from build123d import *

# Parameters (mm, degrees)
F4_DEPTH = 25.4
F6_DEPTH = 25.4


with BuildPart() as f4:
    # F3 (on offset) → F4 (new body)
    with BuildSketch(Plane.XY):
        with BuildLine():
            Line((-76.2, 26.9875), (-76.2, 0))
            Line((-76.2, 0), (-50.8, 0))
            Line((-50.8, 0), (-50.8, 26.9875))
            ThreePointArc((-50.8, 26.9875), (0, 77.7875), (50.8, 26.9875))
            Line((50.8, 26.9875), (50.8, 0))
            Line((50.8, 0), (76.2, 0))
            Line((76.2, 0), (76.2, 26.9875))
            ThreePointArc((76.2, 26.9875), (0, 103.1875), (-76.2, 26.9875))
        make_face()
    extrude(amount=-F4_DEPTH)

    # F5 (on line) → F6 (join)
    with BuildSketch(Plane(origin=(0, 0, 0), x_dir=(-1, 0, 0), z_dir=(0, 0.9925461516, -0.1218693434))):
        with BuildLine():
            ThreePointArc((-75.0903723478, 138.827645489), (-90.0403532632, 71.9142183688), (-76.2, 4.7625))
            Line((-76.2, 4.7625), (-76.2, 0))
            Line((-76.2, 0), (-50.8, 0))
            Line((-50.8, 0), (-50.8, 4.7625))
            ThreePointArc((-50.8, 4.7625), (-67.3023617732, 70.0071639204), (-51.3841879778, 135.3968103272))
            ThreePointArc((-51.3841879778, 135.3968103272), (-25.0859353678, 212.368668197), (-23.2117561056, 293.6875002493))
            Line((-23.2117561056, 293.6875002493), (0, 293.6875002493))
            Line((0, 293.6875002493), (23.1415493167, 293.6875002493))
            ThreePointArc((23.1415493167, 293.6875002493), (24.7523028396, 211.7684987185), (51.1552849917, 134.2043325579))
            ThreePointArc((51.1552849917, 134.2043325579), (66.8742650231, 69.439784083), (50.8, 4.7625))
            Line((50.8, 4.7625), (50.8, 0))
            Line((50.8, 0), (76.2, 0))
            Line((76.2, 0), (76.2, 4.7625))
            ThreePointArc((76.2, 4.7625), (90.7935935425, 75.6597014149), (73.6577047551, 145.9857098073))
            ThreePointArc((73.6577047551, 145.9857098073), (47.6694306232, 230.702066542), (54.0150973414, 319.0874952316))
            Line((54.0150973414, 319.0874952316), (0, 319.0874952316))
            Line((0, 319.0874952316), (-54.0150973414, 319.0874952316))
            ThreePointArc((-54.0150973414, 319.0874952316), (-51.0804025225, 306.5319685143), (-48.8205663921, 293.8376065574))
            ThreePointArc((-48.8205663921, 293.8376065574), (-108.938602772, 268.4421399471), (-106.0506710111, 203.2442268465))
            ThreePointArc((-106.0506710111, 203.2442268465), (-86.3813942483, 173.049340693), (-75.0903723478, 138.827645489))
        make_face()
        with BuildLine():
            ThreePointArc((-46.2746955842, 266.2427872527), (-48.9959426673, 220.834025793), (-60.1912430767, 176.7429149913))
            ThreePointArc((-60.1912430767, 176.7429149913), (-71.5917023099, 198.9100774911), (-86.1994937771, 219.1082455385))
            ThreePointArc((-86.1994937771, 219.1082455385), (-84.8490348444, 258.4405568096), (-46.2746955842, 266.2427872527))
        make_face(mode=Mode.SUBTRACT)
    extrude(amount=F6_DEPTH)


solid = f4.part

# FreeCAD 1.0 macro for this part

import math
import FreeCAD as App
import Part
import Sketcher
from FreeCAD import Vector
Q = App.Units.Quantity

doc = App.newDocument("Part")
body = doc.addObject("PartDesign::Body", "Body")

# Sketch on XY plane
sketch1 = body.newObject("Sketcher::SketchObject", "Sketch")
sketch1.AttachmentSupport = (doc.getObject("XY_Plane"), [""])
sketch1.MapMode = "FlatFace"
sketch1.addGeometry(Part.LineSegment(Vector(-76, 27, 0), Vector(-76, 0, 0)), False)
sketch1.addGeometry(Part.LineSegment(Vector(-76, 0, 0), Vector(-51, 0, 0)), False)
sketch1.addGeometry(Part.LineSegment(Vector(-51, 0, 0), Vector(-51, 27, 0)), False)
sketch1.addGeometry(Part.ArcOfCircle(Part.Circle(Vector(0, 27, 0), Vector(0, 0, 1), 51), math.radians(0), math.radians(180)), False)
sketch1.addGeometry(Part.LineSegment(Vector(51, 27, 0), Vector(51, 0, 0)), False)
sketch1.addGeometry(Part.LineSegment(Vector(51, 0, 0), Vector(76, 0, 0)), False)
sketch1.addGeometry(Part.LineSegment(Vector(76, 0, 0), Vector(76, 27, 0)), False)
sketch1.addGeometry(Part.ArcOfCircle(Part.Circle(Vector(0, 27, 0), Vector(0, 0, 1), 76), math.radians(0), math.radians(180)), False)
sketch1.addConstraint(Sketcher.Constraint("Coincident", 0, 2, 1, 1))
sketch1.addConstraint(Sketcher.Constraint("Coincident", 1, 2, 2, 1))
sketch1.addConstraint(Sketcher.Constraint("Tangent", 2, 2, 3, 2))
sketch1.addConstraint(Sketcher.Constraint("Tangent", 3, 1, 4, 1))
sketch1.addConstraint(Sketcher.Constraint("Coincident", 4, 2, 5, 1))
sketch1.addConstraint(Sketcher.Constraint("Coincident", 5, 2, 6, 1))
sketch1.addConstraint(Sketcher.Constraint("Tangent", 6, 2, 7, 1))
sketch1.addConstraint(Sketcher.Constraint("Tangent", 7, 2, 0, 1))
sketch1.addConstraint(Sketcher.Constraint("Vertical", 0))
sketch1.addConstraint(Sketcher.Constraint("Horizontal", 1))
sketch1.addConstraint(Sketcher.Constraint("Vertical", 2))
sketch1.addConstraint(Sketcher.Constraint("Vertical", 4))
sketch1.addConstraint(Sketcher.Constraint("Horizontal", 5))
sketch1.addConstraint(Sketcher.Constraint("Vertical", 6))
sketch1.addConstraint(Sketcher.Constraint("Coincident", 7, 3, 3, 3))
sketch1.addConstraint(Sketcher.Constraint("Symmetric", 1, 2, 4, 2, -1, 1))
sketch1.addConstraint(Sketcher.Constraint("PointOnObject", 0, 2, -1))
sketch1.addConstraint(Sketcher.Constraint("Radius", 3, Q("2 in")))
sketch1.addConstraint(Sketcher.Constraint("Radius", 7, Q("3 in")))
sketch1.addConstraint(Sketcher.Constraint("DistanceY", 0, 2, 0, 1, Q("1.0625 in")))
pad1 = body.newObject("PartDesign::Pad", "Pad")
pad1.Profile = sketch1
pad1.Length = Q("1 in")
pad1.Reversed = True

# Sketch on an angled plane
sketch2 = body.newObject("Sketcher::SketchObject", "Sketch001")
sketch2.Placement = App.Placement(Vector(0, 0, 0), App.Rotation(Vector(-1, 0, 0), Vector(0, 0.121869343, 0.992546152), Vector(0, 0.992546152, -0.121869343), "ZXY"))
sketch2.addGeometry(Part.ArcOfCircle(Part.Circle(Vector(73.229257, 70.562872, 0), Vector(0, 0, 1), 163.275203), math.radians(155.285537), math.radians(203.766036)), False)
sketch2.addGeometry(Part.LineSegment(Vector(-76.2, 4.7625, 0), Vector(-76.2, 0, 0)), False)
sketch2.addGeometry(Part.LineSegment(Vector(-76.2, 0, 0), Vector(-50.8, 0, 0)), False)
sketch2.addGeometry(Part.LineSegment(Vector(-50.8, 0, 0), Vector(-50.8, 4.7625, 0)), False)
sketch2.addGeometry(Part.ArcOfCircle(Part.Circle(Vector(72.396242, 70.631887, 0), Vector(0, 0, 1), 139.7), math.radians(152.380344), math.radians(208.132098)), False)
sketch2.addGeometry(Part.ArcOfCircle(Part.Circle(Vector(-287.659642, 259.101296, 0), Vector(0, 0, 1), 266.7), math.radians(-27.634776), math.radians(7.45122)), False)
sketch2.addGeometry(Part.LineSegment(Vector(-23.211756, 293.6875, 0), Vector(23.141549, 293.6875, 0)), False)
sketch2.addGeometry(Part.ArcOfCircle(Part.Circle(Vector(287.430739, 257.908818, 0), Vector(0, 0, 1), 266.7), math.radians(172.290338), math.radians(207.634776)), False)
sketch2.addGeometry(Part.ArcOfCircle(Part.Circle(Vector(-72.825209, 69.823224, 0), Vector(0, 0, 1), 139.7), math.radians(-27.756662), math.radians(27.442138)), False)
sketch2.addGeometry(Part.LineSegment(Vector(50.8, 4.7625, 0), Vector(50.8, 0, 0)), False)
sketch2.addGeometry(Part.LineSegment(Vector(50.8, 0, 0), Vector(76.2, 0, 0)), False)
sketch2.addGeometry(Part.LineSegment(Vector(76.2, 0, 0), Vector(76.2, 4.7625, 0)), False)
sketch2.addGeometry(Part.ArcOfCircle(Part.Circle(Vector(-74.279656, 72.688059, 0), Vector(0, 0, 1), 165.099995), math.radians(-24.294113), math.radians(26.356764)), False)
sketch2.addGeometry(Part.ArcOfCircle(Part.Circle(Vector(287.430739, 257.908818, 0), Vector(0, 0, 1), 241.300005), math.radians(165.313039), math.radians(207.634776)), False)
sketch2.addGeometry(Part.LineSegment(Vector(54.015097, 319.087495, 0), Vector(-54.015097, 319.087495, 0)), False)
sketch2.addGeometry(Part.ArcOfCircle(Part.Circle(Vector(-287.430739, 257.908818, 0), Vector(0, 0, 1), 241.300005), math.radians(8.562998), math.radians(14.686961)), False)
sketch2.addGeometry(Part.ArcOfCircle(Part.Circle(Vector(-60.622099, 237.919396, 0), Vector(0, 0, 1), 57.15), math.radians(78.08262), math.radians(217.354127)), False)
sketch2.addGeometry(Part.ArcOfCircle(Part.Circle(Vector(-212.293388, 112.532734, 0), Vector(0, 0, 1), 139.7), math.radians(10.849165), math.radians(40.491156)), False)
sketch2.addGeometry(Part.ArcOfCircle(Part.Circle(Vector(-60.622099, 237.919396, 0), Vector(0, 0, 1), 31.75), math.radians(63.135202), math.radians(216.332993)), False)
sketch2.addGeometry(Part.ArcOfCircle(Part.Circle(Vector(-287.430739, 257.908818, 0), Vector(0, 0, 1), 241.300005), math.radians(-19.655823), math.radians(1.979263)), False)
sketch2.addGeometry(Part.ArcOfCircle(Part.Circle(Vector(-212.293388, 112.532734, 0), Vector(0, 0, 1), 165.1), math.radians(22.887123), math.radians(40.204747)), False)
sketch2.addConstraint(Sketcher.Constraint("Coincident", 0, 2, 1, 1))
sketch2.addConstraint(Sketcher.Constraint("Coincident", 1, 2, 2, 1))
sketch2.addConstraint(Sketcher.Constraint("Coincident", 2, 2, 3, 1))
sketch2.addConstraint(Sketcher.Constraint("Coincident", 3, 2, 4, 2))
sketch2.addConstraint(Sketcher.Constraint("Coincident", 4, 1, 5, 1))
sketch2.addConstraint(Sketcher.Constraint("Coincident", 5, 2, 6, 1))
sketch2.addConstraint(Sketcher.Constraint("Coincident", 6, 2, 7, 1))
sketch2.addConstraint(Sketcher.Constraint("Coincident", 7, 2, 8, 2))
sketch2.addConstraint(Sketcher.Constraint("Coincident", 8, 1, 9, 1))
sketch2.addConstraint(Sketcher.Constraint("Coincident", 9, 2, 10, 1))
sketch2.addConstraint(Sketcher.Constraint("Coincident", 10, 2, 11, 1))
sketch2.addConstraint(Sketcher.Constraint("Coincident", 11, 2, 12, 1))
sketch2.addConstraint(Sketcher.Constraint("Coincident", 12, 2, 13, 2))
sketch2.addConstraint(Sketcher.Constraint("Coincident", 13, 1, 14, 1))
sketch2.addConstraint(Sketcher.Constraint("Coincident", 14, 2, 15, 2))
sketch2.addConstraint(Sketcher.Constraint("Coincident", 15, 1, 16, 1))
sketch2.addConstraint(Sketcher.Constraint("Coincident", 16, 2, 17, 2))
sketch2.addConstraint(Sketcher.Constraint("Coincident", 17, 1, 0, 1))
sketch2.addConstraint(Sketcher.Constraint("Coincident", 18, 1, 19, 2))
sketch2.addConstraint(Sketcher.Constraint("Coincident", 19, 1, 20, 1))
sketch2.addConstraint(Sketcher.Constraint("Coincident", 20, 2, 18, 2))
sketch2.addConstraint(Sketcher.Constraint("Vertical", 1))
sketch2.addConstraint(Sketcher.Constraint("Horizontal", 2))
sketch2.addConstraint(Sketcher.Constraint("Vertical", 3))
sketch2.addConstraint(Sketcher.Constraint("Horizontal", 6))
sketch2.addConstraint(Sketcher.Constraint("Vertical", 9))
sketch2.addConstraint(Sketcher.Constraint("Horizontal", 10))
sketch2.addConstraint(Sketcher.Constraint("Vertical", 11))
sketch2.addConstraint(Sketcher.Constraint("Horizontal", 14))
sketch2.addConstraint(Sketcher.Constraint("Coincident", 13, 3, 7, 3))
sketch2.addConstraint(Sketcher.Constraint("Coincident", 18, 3, 16, 3))
sketch2.addConstraint(Sketcher.Constraint("Coincident", 19, 3, 15, 3))
sketch2.addConstraint(Sketcher.Constraint("Coincident", 20, 3, 17, 3))
sketch2.addConstraint(Sketcher.Constraint("PointOnObject", 1, 2, -1))
sketch2.addConstraint(Sketcher.Constraint("PointOnObject", 9, 2, -1))
sketch2.addConstraint(Sketcher.Constraint("Radius", 4, Q("5.5 in")))
sketch2.addConstraint(Sketcher.Constraint("Radius", 5, Q("10.5 in")))
sketch2.addConstraint(Sketcher.Constraint("Radius", 7, Q("10.5 in")))
sketch2.addConstraint(Sketcher.Constraint("Radius", 8, Q("5.5 in")))
sketch2.addConstraint(Sketcher.Constraint("Radius", 12, Q("6.4999998 in")))
sketch2.addConstraint(Sketcher.Constraint("Radius", 13, Q("9.5000002 in")))
sketch2.addConstraint(Sketcher.Constraint("Radius", 15, Q("9.5000002 in")))
sketch2.addConstraint(Sketcher.Constraint("Radius", 17, Q("5.5 in")))
sketch2.addConstraint(Sketcher.Constraint("Radius", 19, Q("9.5000002 in")))
sketch2.addConstraint(Sketcher.Constraint("Radius", 20, Q("6.5 in")))
sketch2.addConstraint(Sketcher.Constraint("DistanceX", 2, 1, 2, 2, Q("1 in")))
sketch2.addConstraint(Sketcher.Constraint("DistanceX", 10, 1, 10, 2, Q("1 in")))
sketch2.addConstraint(Sketcher.Constraint("Radius", 16, Q("2.25 in")))
sketch2.addConstraint(Sketcher.Constraint("Radius", 18, Q("1.25 in")))
sketch2.addConstraint(Sketcher.Constraint("DistanceX", 0, 2, -1, 1, Q("3 in")))
sketch2.addConstraint(Sketcher.Constraint("DistanceX", -1, 1, 8, 1, Q("2 in")))
sketch2.addConstraint(Sketcher.Constraint("DistanceY", 6, 2, 13, 1, Q("0.9999998 in")))
sketch2.addConstraint(Sketcher.Constraint("DistanceY", 1, 2, 1, 1, Q("0.1875 in")))
sketch2.addConstraint(Sketcher.Constraint("DistanceY", 3, 1, 3, 2, Q("0.1875 in")))
sketch2.addConstraint(Sketcher.Constraint("DistanceY", 9, 2, 9, 1, Q("0.1875 in")))
sketch2.addConstraint(Sketcher.Constraint("DistanceY", 11, 1, 11, 2, Q("0.1875 in")))
sketch2.addConstraint(Sketcher.Constraint("DistanceY", -1, 1, 6, 2, Q("11.5625 in")))
sketch2.addConstraint(Sketcher.Constraint("Radius", 0, 163.275203))
sketch2.addConstraint(Sketcher.Constraint("DistanceX", 16, 3, -1, 1, 60.622099))
sketch2.addConstraint(Sketcher.Constraint("DistanceX", 5, 3, 0, 3, 360.888899))
sketch2.addConstraint(Sketcher.Constraint("DistanceX", 12, 3, 5, 2, 51.0679))
sketch2.addConstraint(Sketcher.Constraint("DistanceY", 4, 1, 12, 2, 10.588899))
sketch2.addConstraint(Sketcher.Constraint("DistanceY", 16, 3, 13, 1, 81.1681))
sketch2.addConstraint(Sketcher.Constraint("DistanceX", 16, 3, 14, 2, 6.607001))
sketch2.addConstraint(Sketcher.Constraint("DistanceX", 16, 2, 17, 1, 30.960299))
sketch2.addConstraint(Sketcher.Constraint("DistanceX", 14, 2, 18, 1, 7.740402))
sketch2.addConstraint(Sketcher.Constraint("DistanceX", 6, 1, 6, 2, 46.353305))
sketch2.addConstraint(Sketcher.Constraint("DistanceX", 14, 2, 14, 1, 108.030195))
sketch2.addConstraint(Sketcher.Constraint("DistanceY", -1, 1, 0, 3, 70.562872))
sketch2.addConstraint(Sketcher.Constraint("DistanceX", -1, 1, 4, 3, 72.396242))
sketch2.addConstraint(Sketcher.Constraint("DistanceX", 8, 3, -1, 1, 72.825209))
sketch2.addConstraint(Sketcher.Constraint("DistanceX", 17, 3, -1, 1, 212.293388))
pad2 = body.newObject("PartDesign::Pad", "Pad001")
pad2.Profile = sketch2
pad2.Length = Q("1 in")

doc.recompute()
